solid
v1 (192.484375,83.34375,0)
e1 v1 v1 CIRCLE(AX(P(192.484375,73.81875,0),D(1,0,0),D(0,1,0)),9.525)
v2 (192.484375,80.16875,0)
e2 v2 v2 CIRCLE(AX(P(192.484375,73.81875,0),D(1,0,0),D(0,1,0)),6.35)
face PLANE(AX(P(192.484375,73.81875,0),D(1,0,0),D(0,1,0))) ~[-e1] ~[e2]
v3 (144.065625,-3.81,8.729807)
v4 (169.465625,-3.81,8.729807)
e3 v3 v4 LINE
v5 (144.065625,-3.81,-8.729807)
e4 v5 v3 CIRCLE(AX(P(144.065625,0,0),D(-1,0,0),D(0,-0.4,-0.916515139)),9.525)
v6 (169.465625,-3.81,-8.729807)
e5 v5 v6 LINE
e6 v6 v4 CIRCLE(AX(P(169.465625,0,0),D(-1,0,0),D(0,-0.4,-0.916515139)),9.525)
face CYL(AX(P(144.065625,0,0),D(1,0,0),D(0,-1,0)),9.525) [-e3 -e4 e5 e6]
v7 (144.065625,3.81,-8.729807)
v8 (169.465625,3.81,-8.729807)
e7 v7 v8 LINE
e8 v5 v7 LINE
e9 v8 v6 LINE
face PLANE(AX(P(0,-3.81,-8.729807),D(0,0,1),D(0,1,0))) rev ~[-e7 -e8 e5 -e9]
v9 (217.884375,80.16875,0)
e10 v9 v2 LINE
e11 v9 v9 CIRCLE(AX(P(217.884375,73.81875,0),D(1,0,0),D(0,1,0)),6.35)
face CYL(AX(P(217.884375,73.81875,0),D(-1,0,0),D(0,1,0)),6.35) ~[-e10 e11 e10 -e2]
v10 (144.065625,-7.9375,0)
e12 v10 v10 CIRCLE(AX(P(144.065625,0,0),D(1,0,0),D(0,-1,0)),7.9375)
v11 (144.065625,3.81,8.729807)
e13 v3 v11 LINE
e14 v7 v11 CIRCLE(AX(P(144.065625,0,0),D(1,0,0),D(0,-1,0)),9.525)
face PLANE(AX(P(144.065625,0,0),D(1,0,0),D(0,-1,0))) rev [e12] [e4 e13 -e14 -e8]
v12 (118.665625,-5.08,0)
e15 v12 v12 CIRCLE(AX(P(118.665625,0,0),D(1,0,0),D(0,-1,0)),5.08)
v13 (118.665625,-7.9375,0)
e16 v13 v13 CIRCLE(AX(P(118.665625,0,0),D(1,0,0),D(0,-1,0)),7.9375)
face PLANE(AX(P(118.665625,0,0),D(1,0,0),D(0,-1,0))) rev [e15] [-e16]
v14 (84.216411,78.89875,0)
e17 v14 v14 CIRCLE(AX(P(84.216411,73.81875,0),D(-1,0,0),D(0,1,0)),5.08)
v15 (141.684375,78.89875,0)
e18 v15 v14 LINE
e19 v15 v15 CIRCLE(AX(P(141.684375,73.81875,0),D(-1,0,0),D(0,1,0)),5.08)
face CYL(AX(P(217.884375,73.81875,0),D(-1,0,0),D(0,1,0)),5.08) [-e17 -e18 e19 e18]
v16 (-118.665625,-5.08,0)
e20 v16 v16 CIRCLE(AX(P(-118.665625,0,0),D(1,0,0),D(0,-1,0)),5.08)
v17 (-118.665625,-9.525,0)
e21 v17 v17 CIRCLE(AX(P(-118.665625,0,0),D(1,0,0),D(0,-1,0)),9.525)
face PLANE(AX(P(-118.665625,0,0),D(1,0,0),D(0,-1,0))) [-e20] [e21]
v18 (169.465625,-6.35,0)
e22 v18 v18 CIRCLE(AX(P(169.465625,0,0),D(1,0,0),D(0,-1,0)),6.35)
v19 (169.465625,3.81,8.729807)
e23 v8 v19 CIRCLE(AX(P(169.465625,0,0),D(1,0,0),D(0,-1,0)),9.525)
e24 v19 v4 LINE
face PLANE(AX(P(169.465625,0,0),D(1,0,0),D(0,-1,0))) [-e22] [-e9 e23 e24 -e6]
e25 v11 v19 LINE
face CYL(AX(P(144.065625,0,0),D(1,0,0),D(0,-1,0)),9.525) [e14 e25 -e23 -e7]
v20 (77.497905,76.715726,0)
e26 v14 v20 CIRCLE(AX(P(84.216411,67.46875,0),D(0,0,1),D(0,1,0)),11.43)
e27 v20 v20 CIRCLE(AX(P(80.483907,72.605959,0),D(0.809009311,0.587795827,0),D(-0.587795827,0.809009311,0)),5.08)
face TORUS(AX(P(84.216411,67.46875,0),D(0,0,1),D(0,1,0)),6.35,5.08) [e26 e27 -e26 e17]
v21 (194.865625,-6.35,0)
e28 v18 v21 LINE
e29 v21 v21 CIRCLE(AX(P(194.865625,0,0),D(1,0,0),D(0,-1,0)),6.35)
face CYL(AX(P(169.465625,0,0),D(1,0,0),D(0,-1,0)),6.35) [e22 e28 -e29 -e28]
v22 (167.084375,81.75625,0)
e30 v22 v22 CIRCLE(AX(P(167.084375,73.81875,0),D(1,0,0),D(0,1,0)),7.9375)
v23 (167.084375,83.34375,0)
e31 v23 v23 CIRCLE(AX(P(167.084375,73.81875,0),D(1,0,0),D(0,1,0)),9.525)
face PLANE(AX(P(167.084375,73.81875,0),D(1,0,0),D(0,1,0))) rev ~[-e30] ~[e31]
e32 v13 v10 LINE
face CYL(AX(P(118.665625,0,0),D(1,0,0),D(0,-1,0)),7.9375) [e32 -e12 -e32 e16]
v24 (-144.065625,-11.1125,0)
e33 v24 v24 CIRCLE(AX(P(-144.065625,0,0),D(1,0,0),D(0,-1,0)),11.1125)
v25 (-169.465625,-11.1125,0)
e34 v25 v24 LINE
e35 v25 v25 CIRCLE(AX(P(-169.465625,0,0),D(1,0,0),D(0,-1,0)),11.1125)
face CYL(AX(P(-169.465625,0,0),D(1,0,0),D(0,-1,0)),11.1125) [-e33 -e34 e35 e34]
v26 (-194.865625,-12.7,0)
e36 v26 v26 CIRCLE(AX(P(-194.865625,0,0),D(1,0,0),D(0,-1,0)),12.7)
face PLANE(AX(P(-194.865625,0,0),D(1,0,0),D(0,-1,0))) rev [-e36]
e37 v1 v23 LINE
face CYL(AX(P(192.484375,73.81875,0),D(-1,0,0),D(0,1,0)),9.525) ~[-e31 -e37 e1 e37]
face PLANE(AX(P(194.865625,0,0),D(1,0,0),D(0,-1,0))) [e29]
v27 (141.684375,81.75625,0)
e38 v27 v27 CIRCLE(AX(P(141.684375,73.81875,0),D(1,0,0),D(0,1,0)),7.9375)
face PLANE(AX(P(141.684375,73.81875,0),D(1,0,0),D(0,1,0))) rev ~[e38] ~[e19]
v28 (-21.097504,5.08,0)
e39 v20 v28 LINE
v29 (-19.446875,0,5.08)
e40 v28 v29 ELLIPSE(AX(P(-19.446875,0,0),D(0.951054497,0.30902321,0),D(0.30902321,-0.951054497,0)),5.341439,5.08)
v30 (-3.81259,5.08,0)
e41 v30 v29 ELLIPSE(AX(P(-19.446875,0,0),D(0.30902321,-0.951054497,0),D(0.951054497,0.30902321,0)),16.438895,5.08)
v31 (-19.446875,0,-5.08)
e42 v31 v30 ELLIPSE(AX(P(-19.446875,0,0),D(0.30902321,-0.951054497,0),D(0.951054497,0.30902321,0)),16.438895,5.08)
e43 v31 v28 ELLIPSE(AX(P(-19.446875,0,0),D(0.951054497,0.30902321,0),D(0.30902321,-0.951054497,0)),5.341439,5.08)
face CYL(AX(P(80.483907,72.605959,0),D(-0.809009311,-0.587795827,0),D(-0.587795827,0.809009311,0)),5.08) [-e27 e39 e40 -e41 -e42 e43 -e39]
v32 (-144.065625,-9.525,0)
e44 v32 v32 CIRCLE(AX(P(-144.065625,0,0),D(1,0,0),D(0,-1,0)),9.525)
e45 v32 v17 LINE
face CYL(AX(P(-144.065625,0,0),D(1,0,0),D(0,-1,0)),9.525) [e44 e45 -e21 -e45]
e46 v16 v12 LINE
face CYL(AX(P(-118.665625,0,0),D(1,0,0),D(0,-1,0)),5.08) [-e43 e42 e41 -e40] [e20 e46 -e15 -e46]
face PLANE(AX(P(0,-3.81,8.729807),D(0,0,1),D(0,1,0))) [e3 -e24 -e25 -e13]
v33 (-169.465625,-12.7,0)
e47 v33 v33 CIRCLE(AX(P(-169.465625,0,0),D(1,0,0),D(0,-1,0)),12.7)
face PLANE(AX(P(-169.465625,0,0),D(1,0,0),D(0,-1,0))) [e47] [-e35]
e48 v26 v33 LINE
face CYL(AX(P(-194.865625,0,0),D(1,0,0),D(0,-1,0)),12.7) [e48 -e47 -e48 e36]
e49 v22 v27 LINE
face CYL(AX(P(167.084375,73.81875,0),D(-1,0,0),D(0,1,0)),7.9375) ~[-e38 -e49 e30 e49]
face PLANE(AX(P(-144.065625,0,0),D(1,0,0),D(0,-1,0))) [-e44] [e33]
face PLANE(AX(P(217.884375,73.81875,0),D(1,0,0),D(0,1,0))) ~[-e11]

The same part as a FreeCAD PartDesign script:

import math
import FreeCAD as App
import Part
import Sketcher

V = App.Vector
Q = App.Units.Quantity


def add_polygon(sketch, points):
    """Adds a closed chain of lines whose ends are joined by coincident constraints."""
    first, n = sketch.GeometryCount, len(points)
    for a, b in zip(points, points[1:] + points[:1]):
        sketch.addGeometry(Part.LineSegment(App.Vector(*a, 0), App.Vector(*b, 0)), False)
    for i in range(n):
        sketch.addConstraint(Sketcher.Constraint("Coincident", first + i, 2, first + (i + 1) % n, 1))

doc = App.newDocument("Part")
body = doc.addObject("PartDesign::Body", "Body")

sketch1 = doc.addObject("Sketcher::SketchObject", "Sketch")
body.addObject(sketch1)
sketch1.AttachmentSupport = (doc.XY_Plane, [""])
sketch1.MapMode = "FlatFace"
add_polygon(sketch1, [(-194.9, 0), (-194.9, -12.7), (-169.5, -12.7), (-169.5, -11.1), (-144.1, -11.1), (-144.1, -9.5), (-118.7, -9.5), (-118.7, -5.1), (118.7, -5.1), (118.7, -7.9), (144.1, -7.9), (144.1, -9.5), (169.5, -9.5), (169.5, -6.3), (194.9, -6.3), (194.9, 0)])
sketch1.addConstraint([
    Sketcher.Constraint("Vertical", 0),
    Sketcher.Constraint("Horizontal", 1),
    Sketcher.Constraint("Vertical", 2),
    Sketcher.Constraint("Horizontal", 3),
    Sketcher.Constraint("Vertical", 4),
    Sketcher.Constraint("Horizontal", 5),
    Sketcher.Constraint("Vertical", 6),
    Sketcher.Constraint("Horizontal", 7),
    Sketcher.Constraint("Vertical", 8),
    Sketcher.Constraint("Horizontal", 9),
    Sketcher.Constraint("Vertical", 10),
    Sketcher.Constraint("Horizontal", 11),
    Sketcher.Constraint("Vertical", 12),
    Sketcher.Constraint("Horizontal", 13),
    Sketcher.Constraint("Vertical", 14),
    Sketcher.Constraint("Horizontal", 15),
    Sketcher.Constraint("Symmetric", 14, 2, 15, 2, -1, 1),
    Sketcher.Constraint("Symmetric", 4, 2, 10, 2, -2),
    Sketcher.Constraint("Equal", 1, 3),
    Sketcher.Constraint("Equal", 3, 5),
    Sketcher.Constraint("Equal", 5, 9),
    Sketcher.Constraint("Equal", 9, 11),
    Sketcher.Constraint("Equal", 2, 4),
    Sketcher.Constraint("Equal", 4, 10),
    Sketcher.Constraint("DistanceX", 1, 1, 1, 2, Q("1 in")),
    Sketcher.Constraint("DistanceY", 0, 2, 0, 1, Q("0.5 in")),
    Sketcher.Constraint("DistanceY", 14, 1, 14, 2, Q("0.25 in")),
    Sketcher.Constraint("DistanceY", 6, 2, -1, 1, Q("0.2 in")),
    Sketcher.Constraint("DistanceX", 7, 1, 7, 2, Q("9.34375 in")),
    Sketcher.Constraint("DistanceY", 2, 1, 2, 2, Q("0.0625 in")),
])
revolution = doc.addObject("PartDesign::Revolution", "Revolution")
body.addObject(revolution)
revolution.Profile = sketch1
revolution.ReferenceAxis = (sketch1, ["H_Axis"])
revolution.Angle = 360

sketch2 = doc.addObject("Sketcher::SketchObject", "Sketch001")
body.addObject(sketch2)
sketch2.AttachmentSupport = (doc.YZ_Plane, [""])
sketch2.MapMode = "FlatFace"
sketch2.AttachmentOffset = App.Placement(V(0, 0, 8.578125 * 25.4), App.Rotation())
sketch2.addGeometry(Part.Circle(V(74, 0, 0), V(0, 0, 1), 5), False)
sketch2.addConstraint([
    Sketcher.Constraint("PointOnObject", 0, 3, -1),
    Sketcher.Constraint("Diameter", 0, Q("0.4 in")),
    Sketcher.Constraint("DistanceX", -1, 1, 0, 3, Q("2.90625 in")),
])

sketch3 = doc.addObject("Sketcher::SketchObject", "Sketch002")
body.addObject(sketch3)
sketch3.AttachmentSupport = (doc.XY_Plane, [""])
sketch3.MapMode = "FlatFace"
sketch3.addGeometry([
    Part.LineSegment(V(217.9, 73.8, 0), V(84.2, 73.8, 0)),
    Part.ArcOfCircle(Part.Circle(V(84.2, 67.5, 0), V(0, 0, 1), 6.3), math.radians(90), math.radians(126)),
    Part.LineSegment(V(80.5, 72.6, 0), V(-19.4, 0, 0)),
], False)
sketch3.addConstraint([
    Sketcher.Constraint("Tangent", 0, 2, 1, 1),
    Sketcher.Constraint("Tangent", 1, 2, 2, 1),
    Sketcher.Constraint("Horizontal", 0),
    Sketcher.Constraint("PointOnObject", 2, 2, -1),
    Sketcher.Constraint("Radius", 1, Q("0.25 in")),
    Sketcher.Constraint("DistanceY", -1, 1, 1, 3, Q("2.65625 in")),
    Sketcher.Constraint("DistanceX", -1, 1, 0, 1, Q("8.578125 in")),
    Sketcher.Constraint("DistanceX", 2, 2, -1, 1, Q("0.765625 in")),
    Sketcher.Constraint("DistanceX", 0, 2, 0, 1, Q("133.667964 mm")),
])
doc.recompute()

additivepipe = doc.addObject("PartDesign::AdditivePipe", "AdditivePipe")
body.addObject(additivepipe)
additivepipe.Profile = sketch2
additivepipe.Spine = (sketch3, ["Edge1", "Edge2", "Edge3"])

sketch4 = doc.addObject("Sketcher::SketchObject", "Sketch003")
body.addObject(sketch4)
sketch4.AttachmentSupport = (doc.XY_Plane, [""])
sketch4.MapMode = "FlatFace"
add_polygon(sketch4, [(141.7, 73.8), (217.9, 73.8), (217.9, 80.2), (192.5, 80.2), (192.5, 83.3), (167.1, 83.3), (167.1, 81.8), (141.7, 81.8)])
sketch4.addGeometry(Part.LineSegment(V(141.7, 73.8, 0), V(217.9, 73.8, 0)), True)
sketch4.addConstraint([
    Sketcher.Constraint("Horizontal", 0),
    Sketcher.Constraint("Vertical", 1),
    Sketcher.Constraint("Horizontal", 2),
    Sketcher.Constraint("Vertical", 3),
    Sketcher.Constraint("Horizontal", 4),
    Sketcher.Constraint("Vertical", 5),
    Sketcher.Constraint("Horizontal", 6),
    Sketcher.Constraint("Vertical", 7),
    Sketcher.Constraint("Horizontal", 8),
    Sketcher.Constraint("Coincident", 8, 1, 7, 2),
    Sketcher.Constraint("Vertical", 1, 2, 8, 2),
    Sketcher.Constraint("Equal", 2, 4),
    Sketcher.Constraint("Equal", 4, 6),
    Sketcher.Constraint("DistanceX", 0, 1, 0, 2, Q("3 in")),
    Sketcher.Constraint("DistanceY", 1, 1, 1, 2, Q("0.25 in")),
    Sketcher.Constraint("DistanceY", 3, 1, 3, 2, Q("0.125 in")),
    Sketcher.Constraint("DistanceY", 5, 2, 5, 1, Q("0.0625 in")),
    Sketcher.Constraint("DistanceX", -1, 1, 0, 2, Q("8.578125 in")),
    Sketcher.Constraint("DistanceY", -1, 1, 0, 2, Q("2.90625 in")),
])
revolution2 = doc.addObject("PartDesign::Revolution", "Revolution001")
body.addObject(revolution2)
revolution2.Profile = sketch4
revolution2.ReferenceAxis = (sketch4, ["Axis0"])
revolution2.Angle = 360

sketch5 = doc.addObject("Sketcher::SketchObject", "Sketch004")
body.addObject(sketch5)
sketch5.AttachmentSupport = (doc.YZ_Plane, [""])
sketch5.MapMode = "FlatFace"
add_polygon(sketch5, [(-3.8, 9.5), (-3.8, 8.7), (3.8, 8.7), (3.8, 9.5)])
add_polygon(sketch5, [(-3.8, -8.7), (-3.8, -9.5), (3.8, -9.5), (3.8, -8.7)])
sketch5.addConstraint([
    Sketcher.Constraint("Vertical", 0),
    Sketcher.Constraint("Horizontal", 1),
    Sketcher.Constraint("Vertical", 2),
    Sketcher.Constraint("Horizontal", 3),
    Sketcher.Constraint("Vertical", 4),
    Sketcher.Constraint("Horizontal", 5),
    Sketcher.Constraint("Vertical", 6),
    Sketcher.Constraint("Horizontal", 7),
    Sketcher.Constraint("Symmetric", 2, 2, 4, 2, -1, 1),
    Sketcher.Constraint("Symmetric", 0, 2, 6, 2, -1, 1),
    Sketcher.Constraint("Vertical", 3, 2, 4, 2),
    Sketcher.Constraint("DistanceX", 1, 1, 1, 2, Q("0.3 in")),
    Sketcher.Constraint("DistanceY", 4, 2, 3, 2, Q("0.75 in")),
    Sketcher.Constraint("DistanceY", 0, 2, 0, 1, Q("0.795193 mm")),
])
pocket1 = doc.addObject("PartDesign::Pocket", "Pocket")
body.addObject(pocket1)
pocket1.Profile = sketch5
pocket1.Type = "ThroughAll"
pocket1.Reversed = True

doc.recompute()
